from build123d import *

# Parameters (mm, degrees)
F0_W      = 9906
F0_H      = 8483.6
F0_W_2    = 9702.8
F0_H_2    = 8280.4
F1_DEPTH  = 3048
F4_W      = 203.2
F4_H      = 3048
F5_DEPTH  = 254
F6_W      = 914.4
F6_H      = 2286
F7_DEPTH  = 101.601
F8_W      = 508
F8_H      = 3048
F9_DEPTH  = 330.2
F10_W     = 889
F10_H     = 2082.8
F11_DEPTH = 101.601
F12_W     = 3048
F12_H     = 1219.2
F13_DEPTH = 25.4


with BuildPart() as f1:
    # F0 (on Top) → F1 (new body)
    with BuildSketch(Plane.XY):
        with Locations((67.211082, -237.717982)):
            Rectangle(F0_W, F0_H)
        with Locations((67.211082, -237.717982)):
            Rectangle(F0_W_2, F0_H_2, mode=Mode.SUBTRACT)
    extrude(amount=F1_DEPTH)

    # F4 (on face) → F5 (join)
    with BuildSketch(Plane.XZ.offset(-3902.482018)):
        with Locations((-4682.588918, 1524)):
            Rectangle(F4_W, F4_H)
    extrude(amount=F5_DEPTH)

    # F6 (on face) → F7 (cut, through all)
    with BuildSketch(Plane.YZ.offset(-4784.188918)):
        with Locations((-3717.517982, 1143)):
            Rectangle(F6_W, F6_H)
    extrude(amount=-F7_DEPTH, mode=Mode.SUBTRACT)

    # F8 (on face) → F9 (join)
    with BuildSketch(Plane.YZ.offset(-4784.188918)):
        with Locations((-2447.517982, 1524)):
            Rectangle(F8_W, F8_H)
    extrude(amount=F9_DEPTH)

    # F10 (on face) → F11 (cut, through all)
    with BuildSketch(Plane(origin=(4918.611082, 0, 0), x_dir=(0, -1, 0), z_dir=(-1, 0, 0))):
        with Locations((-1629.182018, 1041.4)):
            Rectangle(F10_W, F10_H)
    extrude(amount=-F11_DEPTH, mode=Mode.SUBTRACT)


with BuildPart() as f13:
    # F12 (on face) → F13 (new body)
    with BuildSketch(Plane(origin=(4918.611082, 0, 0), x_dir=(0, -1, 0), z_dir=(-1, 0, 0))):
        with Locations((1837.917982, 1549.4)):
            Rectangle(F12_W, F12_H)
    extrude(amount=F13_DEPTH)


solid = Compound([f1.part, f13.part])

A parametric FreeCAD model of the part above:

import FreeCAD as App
import Part
import Sketcher
Q = App.Units.Quantity

doc = App.newDocument("Part")
body = doc.addObject("PartDesign::Body", "Body")

# Sketch on XY plane
sketch1 = body.newObject("Sketcher::SketchObject", "Sketch")
sketch1.AttachmentSupport = (doc.getObject("XY_Plane"), [""])
sketch1.MapMode = "FlatFace"
sketch1.addGeometry(Part.LineSegment(App.Vector(-4886, 4004, 0), App.Vector(-4886, -4480, 0)), False)
sketch1.addGeometry(Part.LineSegment(App.Vector(-4886, -4480, 0), App.Vector(5020, -4480, 0)), False)
sketch1.addGeometry(Part.LineSegment(App.Vector(5020, -4480, 0), App.Vector(5020, 4004, 0)), False)
sketch1.addGeometry(Part.LineSegment(App.Vector(5020, 4004, 0), App.Vector(-4886, 4004, 0)), False)
sketch1.addGeometry(Part.LineSegment(App.Vector(4919, -4378, 0), App.Vector(-4784, -4378, 0)), False)
sketch1.addGeometry(Part.LineSegment(App.Vector(-4784, -4378, 0), App.Vector(-4784, 3902, 0)), False)
sketch1.addGeometry(Part.LineSegment(App.Vector(-4784, 3902, 0), App.Vector(4919, 3902, 0)), False)
sketch1.addGeometry(Part.LineSegment(App.Vector(4919, 3902, 0), App.Vector(4919, -4378, 0)), False)
sketch1.addConstraint(Sketcher.Constraint("Coincident", 0, 2, 1, 1))
sketch1.addConstraint(Sketcher.Constraint("Coincident", 1, 2, 2, 1))
sketch1.addConstraint(Sketcher.Constraint("Coincident", 2, 2, 3, 1))
sketch1.addConstraint(Sketcher.Constraint("Coincident", 3, 2, 0, 1))
sketch1.addConstraint(Sketcher.Constraint("Coincident", 4, 2, 5, 1))
sketch1.addConstraint(Sketcher.Constraint("Coincident", 5, 2, 6, 1))
sketch1.addConstraint(Sketcher.Constraint("Coincident", 6, 2, 7, 1))
sketch1.addConstraint(Sketcher.Constraint("Coincident", 7, 2, 4, 1))
sketch1.addConstraint(Sketcher.Constraint("Vertical", 0))
sketch1.addConstraint(Sketcher.Constraint("Horizontal", 1))
sketch1.addConstraint(Sketcher.Constraint("Vertical", 2))
sketch1.addConstraint(Sketcher.Constraint("Horizontal", 3))
sketch1.addConstraint(Sketcher.Constraint("Horizontal", 4))
sketch1.addConstraint(Sketcher.Constraint("Vertical", 5))
sketch1.addConstraint(Sketcher.Constraint("Horizontal", 6))
sketch1.addConstraint(Sketcher.Constraint("Vertical", 7))
sketch1.addConstraint(Sketcher.Constraint("DistanceX", 1, 1, 1, 2, Q("390 in")))
sketch1.addConstraint(Sketcher.Constraint("DistanceX", 4, 2, 4, 1, Q("382 in")))
sketch1.addConstraint(Sketcher.Constraint("DistanceY", 0, 2, 0, 1, Q("334 in")))
sketch1.addConstraint(Sketcher.Constraint("DistanceY", 5, 1, 5, 2, Q("326 in")))
sketch1.addConstraint(Sketcher.Constraint("DistanceX", 0, 2, 4, 2, Q("4 in")))
sketch1.addConstraint(Sketcher.Constraint("DistanceY", 0, 2, 4, 2, Q("4 in")))
sketch1.addConstraint(Sketcher.Constraint("DistanceX", 0, 2, -1, 1, 4885.788918))
sketch1.addConstraint(Sketcher.Constraint("DistanceY", -1, 1, 2, 2, 4004.082018))
pad1 = body.newObject("PartDesign::Pad", "Pad")
pad1.Profile = sketch1
pad1.Length = Q("120 in")

# Sketch on XZ plane
sketch2 = body.newObject("Sketcher::SketchObject", "Sketch001")
sketch2.AttachmentSupport = (doc.getObject("XZ_Plane"), [""])
sketch2.MapMode = "FlatFace"
sketch2.AttachmentOffset = App.Placement(App.Vector(0, 0, -3902.482018), App.Rotation())
sketch2.addGeometry(Part.LineSegment(App.Vector(-4784, 3048, 0), App.Vector(-4784, 0, 0)), False)
sketch2.addGeometry(Part.LineSegment(App.Vector(-4784, 0, 0), App.Vector(-4581, 0, 0)), False)
sketch2.addGeometry(Part.LineSegment(App.Vector(-4581, 0, 0), App.Vector(-4581, 3048, 0)), False)
sketch2.addGeometry(Part.LineSegment(App.Vector(-4581, 3048, 0), App.Vector(-4784, 3048, 0)), False)
sketch2.addConstraint(Sketcher.Constraint("Coincident", 0, 2, 1, 1))
sketch2.addConstraint(Sketcher.Constraint("Coincident", 1, 2, 2, 1))
sketch2.addConstraint(Sketcher.Constraint("Coincident", 2, 2, 3, 1))
sketch2.addConstraint(Sketcher.Constraint("Coincident", 3, 2, 0, 1))
sketch2.addConstraint(Sketcher.Constraint("Vertical", 0))
sketch2.addConstraint(Sketcher.Constraint("Horizontal", 1))
sketch2.addConstraint(Sketcher.Constraint("Vertical", 2))
sketch2.addConstraint(Sketcher.Constraint("Horizontal", 3))
sketch2.addConstraint(Sketcher.Constraint("PointOnObject", 0, 2, -1))
sketch2.addConstraint(Sketcher.Constraint("DistanceX", 1, 1, 1, 2, Q("8 in")))
sketch2.addConstraint(Sketcher.Constraint("DistanceY", 0, 2, 0, 1, Q("120 in")))
sketch2.addConstraint(Sketcher.Constraint("DistanceX", 0, 2, -1, 1, 4784.188918))
pad2 = body.newObject("PartDesign::Pad", "Pad001")
pad2.Profile = sketch2
pad2.Length = Q("10 in")

# Sketch on YZ plane
sketch3 = body.newObject("Sketcher::SketchObject", "Sketch002")
sketch3.AttachmentSupport = (doc.getObject("YZ_Plane"), [""])
sketch3.MapMode = "FlatFace"
sketch3.AttachmentOffset = App.Placement(App.Vector(0, 0, -4784.188918), App.Rotation())
sketch3.addGeometry(Part.LineSegment(App.Vector(-4175, 2286, 0), App.Vector(-4175, 0, 0)), False)
sketch3.addGeometry(Part.LineSegment(App.Vector(-4175, 0, 0), App.Vector(-3260, 0, 0)), False)
sketch3.addGeometry(Part.LineSegment(App.Vector(-3260, 0, 0), App.Vector(-3260, 2286, 0)), False)
sketch3.addGeometry(Part.LineSegment(App.Vector(-3260, 2286, 0), App.Vector(-4175, 2286, 0)), False)
sketch3.addConstraint(Sketcher.Constraint("Coincident", 0, 2, 1, 1))
sketch3.addConstraint(Sketcher.Constraint("Coincident", 1, 2, 2, 1))
sketch3.addConstraint(Sketcher.Constraint("Coincident", 2, 2, 3, 1))
sketch3.addConstraint(Sketcher.Constraint("Coincident", 3, 2, 0, 1))
sketch3.addConstraint(Sketcher.Constraint("Vertical", 0))
sketch3.addConstraint(Sketcher.Constraint("Horizontal", 1))
sketch3.addConstraint(Sketcher.Constraint("Vertical", 2))
sketch3.addConstraint(Sketcher.Constraint("Horizontal", 3))
sketch3.addConstraint(Sketcher.Constraint("PointOnObject", 0, 2, -1))
sketch3.addConstraint(Sketcher.Constraint("DistanceX", 1, 1, 1, 2, Q("36 in")))
sketch3.addConstraint(Sketcher.Constraint("DistanceY", 0, 2, 0, 1, Q("90 in")))
sketch3.addConstraint(Sketcher.Constraint("DistanceX", 0, 2, -1, 1, 4174.717982))
pocket1 = body.newObject("PartDesign::Pocket", "Pocket")
pocket1.Profile = sketch3
pocket1.Type = "ThroughAll"

# Sketch on YZ plane
sketch4 = body.newObject("Sketcher::SketchObject", "Sketch003")
sketch4.AttachmentSupport = (doc.getObject("YZ_Plane"), [""])
sketch4.MapMode = "FlatFace"
sketch4.AttachmentOffset = App.Placement(App.Vector(0, 0, -4784.188918), App.Rotation())
sketch4.addGeometry(Part.LineSegment(App.Vector(-2702, 3048, 0), App.Vector(-2702, 0, 0)), False)
sketch4.addGeometry(Part.LineSegment(App.Vector(-2702, 0, 0), App.Vector(-2194, 0, 0)), False)
sketch4.addGeometry(Part.LineSegment(App.Vector(-2194, 0, 0), App.Vector(-2194, 3048, 0)), False)
sketch4.addGeometry(Part.LineSegment(App.Vector(-2194, 3048, 0), App.Vector(-2702, 3048, 0)), False)
sketch4.addConstraint(Sketcher.Constraint("Coincident", 0, 2, 1, 1))
sketch4.addConstraint(Sketcher.Constraint("Coincident", 1, 2, 2, 1))
sketch4.addConstraint(Sketcher.Constraint("Coincident", 2, 2, 3, 1))
sketch4.addConstraint(Sketcher.Constraint("Coincident", 3, 2, 0, 1))
sketch4.addConstraint(Sketcher.Constraint("Vertical", 0))
sketch4.addConstraint(Sketcher.Constraint("Horizontal", 1))
sketch4.addConstraint(Sketcher.Constraint("Vertical", 2))
sketch4.addConstraint(Sketcher.Constraint("Horizontal", 3))
sketch4.addConstraint(Sketcher.Constraint("PointOnObject", 0, 2, -1))
sketch4.addConstraint(Sketcher.Constraint("DistanceX", 1, 1, 1, 2, Q("20 in")))
sketch4.addConstraint(Sketcher.Constraint("DistanceY", 0, 2, 0, 1, Q("120 in")))
sketch4.addConstraint(Sketcher.Constraint("DistanceX", 0, 2, -1, 1, 2701.517982))
pad3 = body.newObject("PartDesign::Pad", "Pad002")
pad3.Profile = sketch4
pad3.Length = Q("13 in")

# Sketch on YZ plane
sketch5 = body.newObject("Sketcher::SketchObject", "Sketch004")
sketch5.AttachmentSupport = (doc.getObject("YZ_Plane"), [""])
sketch5.MapMode = "FlatFace"
sketch5.AttachmentOffset = App.Placement(App.Vector(0, 0, 4918.611082), App.Rotation())
sketch5.addGeometry(Part.LineSegment(App.Vector(2074, 2083, 0), App.Vector(2074, 0, 0)), False)
sketch5.addGeometry(Part.LineSegment(App.Vector(2074, 0, 0), App.Vector(1185, 0, 0)), False)
sketch5.addGeometry(Part.LineSegment(App.Vector(1185, 0, 0), App.Vector(1185, 2083, 0)), False)
sketch5.addGeometry(Part.LineSegment(App.Vector(1185, 2083, 0), App.Vector(2074, 2083, 0)), False)
sketch5.addConstraint(Sketcher.Constraint("Coincident", 0, 2, 1, 1))
sketch5.addConstraint(Sketcher.Constraint("Coincident", 1, 2, 2, 1))
sketch5.addConstraint(Sketcher.Constraint("Coincident", 2, 2, 3, 1))
sketch5.addConstraint(Sketcher.Constraint("Coincident", 3, 2, 0, 1))
sketch5.addConstraint(Sketcher.Constraint("Vertical", 0))
sketch5.addConstraint(Sketcher.Constraint("Horizontal", 1))
sketch5.addConstraint(Sketcher.Constraint("Vertical", 2))
sketch5.addConstraint(Sketcher.Constraint("Horizontal", 3))
sketch5.addConstraint(Sketcher.Constraint("PointOnObject", 0, 2, -1))
sketch5.addConstraint(Sketcher.Constraint("DistanceX", 1, 2, 1, 1, Q("35 in")))
sketch5.addConstraint(Sketcher.Constraint("DistanceY", 0, 2, 0, 1, Q("82 in")))
sketch5.addConstraint(Sketcher.Constraint("DistanceX", -1, 1, 1, 2, 1184.682018))
pocket2 = body.newObject("PartDesign::Pocket", "Pocket001")
pocket2.Profile = sketch5
pocket2.Type = "ThroughAll"
pocket2.Reversed = True
body2 = doc.addObject("PartDesign::Body", "Body001")

# Sketch on YZ plane
sketch6 = body2.newObject("Sketcher::SketchObject", "Sketch005")
sketch6.AttachmentSupport = (doc.getObject("YZ_Plane001"), [""])
sketch6.MapMode = "FlatFace"
sketch6.AttachmentOffset = App.Placement(App.Vector(0, 0, 4918.611082), App.Rotation())
sketch6.addGeometry(Part.LineSegment(App.Vector(-314, 2159, 0), App.Vector(-314, 940, 0)), False)
sketch6.addGeometry(Part.LineSegment(App.Vector(-314, 940, 0), App.Vector(-3362, 940, 0)), False)
sketch6.addGeometry(Part.LineSegment(App.Vector(-3362, 940, 0), App.Vector(-3362, 2159, 0)), False)
sketch6.addGeometry(Part.LineSegment(App.Vector(-3362, 2159, 0), App.Vector(-314, 2159, 0)), False)
sketch6.addConstraint(Sketcher.Constraint("Coincident", 0, 2, 1, 1))
sketch6.addConstraint(Sketcher.Constraint("Coincident", 1, 2, 2, 1))
sketch6.addConstraint(Sketcher.Constraint("Coincident", 2, 2, 3, 1))
sketch6.addConstraint(Sketcher.Constraint("Coincident", 3, 2, 0, 1))
sketch6.addConstraint(Sketcher.Constraint("Vertical", 0))
sketch6.addConstraint(Sketcher.Constraint("Horizontal", 1))
sketch6.addConstraint(Sketcher.Constraint("Vertical", 2))
sketch6.addConstraint(Sketcher.Constraint("Horizontal", 3))
sketch6.addConstraint(Sketcher.Constraint("DistanceX", 1, 2, 1, 1, Q("120 in")))
sketch6.addConstraint(Sketcher.Constraint("DistanceY", 0, 2, 0, 1, Q("48 in")))
sketch6.addConstraint(Sketcher.Constraint("DistanceY", -1, 1, 0, 2, Q("37 in")))
sketch6.addConstraint(Sketcher.Constraint("DistanceX", 0, 2, -1, 1, 313.917982))
pad4 = body2.newObject("PartDesign::Pad", "Pad003")
pad4.Profile = sketch6
pad4.Length = Q("1 in")
pad4.Reversed = True

doc.recompute()
